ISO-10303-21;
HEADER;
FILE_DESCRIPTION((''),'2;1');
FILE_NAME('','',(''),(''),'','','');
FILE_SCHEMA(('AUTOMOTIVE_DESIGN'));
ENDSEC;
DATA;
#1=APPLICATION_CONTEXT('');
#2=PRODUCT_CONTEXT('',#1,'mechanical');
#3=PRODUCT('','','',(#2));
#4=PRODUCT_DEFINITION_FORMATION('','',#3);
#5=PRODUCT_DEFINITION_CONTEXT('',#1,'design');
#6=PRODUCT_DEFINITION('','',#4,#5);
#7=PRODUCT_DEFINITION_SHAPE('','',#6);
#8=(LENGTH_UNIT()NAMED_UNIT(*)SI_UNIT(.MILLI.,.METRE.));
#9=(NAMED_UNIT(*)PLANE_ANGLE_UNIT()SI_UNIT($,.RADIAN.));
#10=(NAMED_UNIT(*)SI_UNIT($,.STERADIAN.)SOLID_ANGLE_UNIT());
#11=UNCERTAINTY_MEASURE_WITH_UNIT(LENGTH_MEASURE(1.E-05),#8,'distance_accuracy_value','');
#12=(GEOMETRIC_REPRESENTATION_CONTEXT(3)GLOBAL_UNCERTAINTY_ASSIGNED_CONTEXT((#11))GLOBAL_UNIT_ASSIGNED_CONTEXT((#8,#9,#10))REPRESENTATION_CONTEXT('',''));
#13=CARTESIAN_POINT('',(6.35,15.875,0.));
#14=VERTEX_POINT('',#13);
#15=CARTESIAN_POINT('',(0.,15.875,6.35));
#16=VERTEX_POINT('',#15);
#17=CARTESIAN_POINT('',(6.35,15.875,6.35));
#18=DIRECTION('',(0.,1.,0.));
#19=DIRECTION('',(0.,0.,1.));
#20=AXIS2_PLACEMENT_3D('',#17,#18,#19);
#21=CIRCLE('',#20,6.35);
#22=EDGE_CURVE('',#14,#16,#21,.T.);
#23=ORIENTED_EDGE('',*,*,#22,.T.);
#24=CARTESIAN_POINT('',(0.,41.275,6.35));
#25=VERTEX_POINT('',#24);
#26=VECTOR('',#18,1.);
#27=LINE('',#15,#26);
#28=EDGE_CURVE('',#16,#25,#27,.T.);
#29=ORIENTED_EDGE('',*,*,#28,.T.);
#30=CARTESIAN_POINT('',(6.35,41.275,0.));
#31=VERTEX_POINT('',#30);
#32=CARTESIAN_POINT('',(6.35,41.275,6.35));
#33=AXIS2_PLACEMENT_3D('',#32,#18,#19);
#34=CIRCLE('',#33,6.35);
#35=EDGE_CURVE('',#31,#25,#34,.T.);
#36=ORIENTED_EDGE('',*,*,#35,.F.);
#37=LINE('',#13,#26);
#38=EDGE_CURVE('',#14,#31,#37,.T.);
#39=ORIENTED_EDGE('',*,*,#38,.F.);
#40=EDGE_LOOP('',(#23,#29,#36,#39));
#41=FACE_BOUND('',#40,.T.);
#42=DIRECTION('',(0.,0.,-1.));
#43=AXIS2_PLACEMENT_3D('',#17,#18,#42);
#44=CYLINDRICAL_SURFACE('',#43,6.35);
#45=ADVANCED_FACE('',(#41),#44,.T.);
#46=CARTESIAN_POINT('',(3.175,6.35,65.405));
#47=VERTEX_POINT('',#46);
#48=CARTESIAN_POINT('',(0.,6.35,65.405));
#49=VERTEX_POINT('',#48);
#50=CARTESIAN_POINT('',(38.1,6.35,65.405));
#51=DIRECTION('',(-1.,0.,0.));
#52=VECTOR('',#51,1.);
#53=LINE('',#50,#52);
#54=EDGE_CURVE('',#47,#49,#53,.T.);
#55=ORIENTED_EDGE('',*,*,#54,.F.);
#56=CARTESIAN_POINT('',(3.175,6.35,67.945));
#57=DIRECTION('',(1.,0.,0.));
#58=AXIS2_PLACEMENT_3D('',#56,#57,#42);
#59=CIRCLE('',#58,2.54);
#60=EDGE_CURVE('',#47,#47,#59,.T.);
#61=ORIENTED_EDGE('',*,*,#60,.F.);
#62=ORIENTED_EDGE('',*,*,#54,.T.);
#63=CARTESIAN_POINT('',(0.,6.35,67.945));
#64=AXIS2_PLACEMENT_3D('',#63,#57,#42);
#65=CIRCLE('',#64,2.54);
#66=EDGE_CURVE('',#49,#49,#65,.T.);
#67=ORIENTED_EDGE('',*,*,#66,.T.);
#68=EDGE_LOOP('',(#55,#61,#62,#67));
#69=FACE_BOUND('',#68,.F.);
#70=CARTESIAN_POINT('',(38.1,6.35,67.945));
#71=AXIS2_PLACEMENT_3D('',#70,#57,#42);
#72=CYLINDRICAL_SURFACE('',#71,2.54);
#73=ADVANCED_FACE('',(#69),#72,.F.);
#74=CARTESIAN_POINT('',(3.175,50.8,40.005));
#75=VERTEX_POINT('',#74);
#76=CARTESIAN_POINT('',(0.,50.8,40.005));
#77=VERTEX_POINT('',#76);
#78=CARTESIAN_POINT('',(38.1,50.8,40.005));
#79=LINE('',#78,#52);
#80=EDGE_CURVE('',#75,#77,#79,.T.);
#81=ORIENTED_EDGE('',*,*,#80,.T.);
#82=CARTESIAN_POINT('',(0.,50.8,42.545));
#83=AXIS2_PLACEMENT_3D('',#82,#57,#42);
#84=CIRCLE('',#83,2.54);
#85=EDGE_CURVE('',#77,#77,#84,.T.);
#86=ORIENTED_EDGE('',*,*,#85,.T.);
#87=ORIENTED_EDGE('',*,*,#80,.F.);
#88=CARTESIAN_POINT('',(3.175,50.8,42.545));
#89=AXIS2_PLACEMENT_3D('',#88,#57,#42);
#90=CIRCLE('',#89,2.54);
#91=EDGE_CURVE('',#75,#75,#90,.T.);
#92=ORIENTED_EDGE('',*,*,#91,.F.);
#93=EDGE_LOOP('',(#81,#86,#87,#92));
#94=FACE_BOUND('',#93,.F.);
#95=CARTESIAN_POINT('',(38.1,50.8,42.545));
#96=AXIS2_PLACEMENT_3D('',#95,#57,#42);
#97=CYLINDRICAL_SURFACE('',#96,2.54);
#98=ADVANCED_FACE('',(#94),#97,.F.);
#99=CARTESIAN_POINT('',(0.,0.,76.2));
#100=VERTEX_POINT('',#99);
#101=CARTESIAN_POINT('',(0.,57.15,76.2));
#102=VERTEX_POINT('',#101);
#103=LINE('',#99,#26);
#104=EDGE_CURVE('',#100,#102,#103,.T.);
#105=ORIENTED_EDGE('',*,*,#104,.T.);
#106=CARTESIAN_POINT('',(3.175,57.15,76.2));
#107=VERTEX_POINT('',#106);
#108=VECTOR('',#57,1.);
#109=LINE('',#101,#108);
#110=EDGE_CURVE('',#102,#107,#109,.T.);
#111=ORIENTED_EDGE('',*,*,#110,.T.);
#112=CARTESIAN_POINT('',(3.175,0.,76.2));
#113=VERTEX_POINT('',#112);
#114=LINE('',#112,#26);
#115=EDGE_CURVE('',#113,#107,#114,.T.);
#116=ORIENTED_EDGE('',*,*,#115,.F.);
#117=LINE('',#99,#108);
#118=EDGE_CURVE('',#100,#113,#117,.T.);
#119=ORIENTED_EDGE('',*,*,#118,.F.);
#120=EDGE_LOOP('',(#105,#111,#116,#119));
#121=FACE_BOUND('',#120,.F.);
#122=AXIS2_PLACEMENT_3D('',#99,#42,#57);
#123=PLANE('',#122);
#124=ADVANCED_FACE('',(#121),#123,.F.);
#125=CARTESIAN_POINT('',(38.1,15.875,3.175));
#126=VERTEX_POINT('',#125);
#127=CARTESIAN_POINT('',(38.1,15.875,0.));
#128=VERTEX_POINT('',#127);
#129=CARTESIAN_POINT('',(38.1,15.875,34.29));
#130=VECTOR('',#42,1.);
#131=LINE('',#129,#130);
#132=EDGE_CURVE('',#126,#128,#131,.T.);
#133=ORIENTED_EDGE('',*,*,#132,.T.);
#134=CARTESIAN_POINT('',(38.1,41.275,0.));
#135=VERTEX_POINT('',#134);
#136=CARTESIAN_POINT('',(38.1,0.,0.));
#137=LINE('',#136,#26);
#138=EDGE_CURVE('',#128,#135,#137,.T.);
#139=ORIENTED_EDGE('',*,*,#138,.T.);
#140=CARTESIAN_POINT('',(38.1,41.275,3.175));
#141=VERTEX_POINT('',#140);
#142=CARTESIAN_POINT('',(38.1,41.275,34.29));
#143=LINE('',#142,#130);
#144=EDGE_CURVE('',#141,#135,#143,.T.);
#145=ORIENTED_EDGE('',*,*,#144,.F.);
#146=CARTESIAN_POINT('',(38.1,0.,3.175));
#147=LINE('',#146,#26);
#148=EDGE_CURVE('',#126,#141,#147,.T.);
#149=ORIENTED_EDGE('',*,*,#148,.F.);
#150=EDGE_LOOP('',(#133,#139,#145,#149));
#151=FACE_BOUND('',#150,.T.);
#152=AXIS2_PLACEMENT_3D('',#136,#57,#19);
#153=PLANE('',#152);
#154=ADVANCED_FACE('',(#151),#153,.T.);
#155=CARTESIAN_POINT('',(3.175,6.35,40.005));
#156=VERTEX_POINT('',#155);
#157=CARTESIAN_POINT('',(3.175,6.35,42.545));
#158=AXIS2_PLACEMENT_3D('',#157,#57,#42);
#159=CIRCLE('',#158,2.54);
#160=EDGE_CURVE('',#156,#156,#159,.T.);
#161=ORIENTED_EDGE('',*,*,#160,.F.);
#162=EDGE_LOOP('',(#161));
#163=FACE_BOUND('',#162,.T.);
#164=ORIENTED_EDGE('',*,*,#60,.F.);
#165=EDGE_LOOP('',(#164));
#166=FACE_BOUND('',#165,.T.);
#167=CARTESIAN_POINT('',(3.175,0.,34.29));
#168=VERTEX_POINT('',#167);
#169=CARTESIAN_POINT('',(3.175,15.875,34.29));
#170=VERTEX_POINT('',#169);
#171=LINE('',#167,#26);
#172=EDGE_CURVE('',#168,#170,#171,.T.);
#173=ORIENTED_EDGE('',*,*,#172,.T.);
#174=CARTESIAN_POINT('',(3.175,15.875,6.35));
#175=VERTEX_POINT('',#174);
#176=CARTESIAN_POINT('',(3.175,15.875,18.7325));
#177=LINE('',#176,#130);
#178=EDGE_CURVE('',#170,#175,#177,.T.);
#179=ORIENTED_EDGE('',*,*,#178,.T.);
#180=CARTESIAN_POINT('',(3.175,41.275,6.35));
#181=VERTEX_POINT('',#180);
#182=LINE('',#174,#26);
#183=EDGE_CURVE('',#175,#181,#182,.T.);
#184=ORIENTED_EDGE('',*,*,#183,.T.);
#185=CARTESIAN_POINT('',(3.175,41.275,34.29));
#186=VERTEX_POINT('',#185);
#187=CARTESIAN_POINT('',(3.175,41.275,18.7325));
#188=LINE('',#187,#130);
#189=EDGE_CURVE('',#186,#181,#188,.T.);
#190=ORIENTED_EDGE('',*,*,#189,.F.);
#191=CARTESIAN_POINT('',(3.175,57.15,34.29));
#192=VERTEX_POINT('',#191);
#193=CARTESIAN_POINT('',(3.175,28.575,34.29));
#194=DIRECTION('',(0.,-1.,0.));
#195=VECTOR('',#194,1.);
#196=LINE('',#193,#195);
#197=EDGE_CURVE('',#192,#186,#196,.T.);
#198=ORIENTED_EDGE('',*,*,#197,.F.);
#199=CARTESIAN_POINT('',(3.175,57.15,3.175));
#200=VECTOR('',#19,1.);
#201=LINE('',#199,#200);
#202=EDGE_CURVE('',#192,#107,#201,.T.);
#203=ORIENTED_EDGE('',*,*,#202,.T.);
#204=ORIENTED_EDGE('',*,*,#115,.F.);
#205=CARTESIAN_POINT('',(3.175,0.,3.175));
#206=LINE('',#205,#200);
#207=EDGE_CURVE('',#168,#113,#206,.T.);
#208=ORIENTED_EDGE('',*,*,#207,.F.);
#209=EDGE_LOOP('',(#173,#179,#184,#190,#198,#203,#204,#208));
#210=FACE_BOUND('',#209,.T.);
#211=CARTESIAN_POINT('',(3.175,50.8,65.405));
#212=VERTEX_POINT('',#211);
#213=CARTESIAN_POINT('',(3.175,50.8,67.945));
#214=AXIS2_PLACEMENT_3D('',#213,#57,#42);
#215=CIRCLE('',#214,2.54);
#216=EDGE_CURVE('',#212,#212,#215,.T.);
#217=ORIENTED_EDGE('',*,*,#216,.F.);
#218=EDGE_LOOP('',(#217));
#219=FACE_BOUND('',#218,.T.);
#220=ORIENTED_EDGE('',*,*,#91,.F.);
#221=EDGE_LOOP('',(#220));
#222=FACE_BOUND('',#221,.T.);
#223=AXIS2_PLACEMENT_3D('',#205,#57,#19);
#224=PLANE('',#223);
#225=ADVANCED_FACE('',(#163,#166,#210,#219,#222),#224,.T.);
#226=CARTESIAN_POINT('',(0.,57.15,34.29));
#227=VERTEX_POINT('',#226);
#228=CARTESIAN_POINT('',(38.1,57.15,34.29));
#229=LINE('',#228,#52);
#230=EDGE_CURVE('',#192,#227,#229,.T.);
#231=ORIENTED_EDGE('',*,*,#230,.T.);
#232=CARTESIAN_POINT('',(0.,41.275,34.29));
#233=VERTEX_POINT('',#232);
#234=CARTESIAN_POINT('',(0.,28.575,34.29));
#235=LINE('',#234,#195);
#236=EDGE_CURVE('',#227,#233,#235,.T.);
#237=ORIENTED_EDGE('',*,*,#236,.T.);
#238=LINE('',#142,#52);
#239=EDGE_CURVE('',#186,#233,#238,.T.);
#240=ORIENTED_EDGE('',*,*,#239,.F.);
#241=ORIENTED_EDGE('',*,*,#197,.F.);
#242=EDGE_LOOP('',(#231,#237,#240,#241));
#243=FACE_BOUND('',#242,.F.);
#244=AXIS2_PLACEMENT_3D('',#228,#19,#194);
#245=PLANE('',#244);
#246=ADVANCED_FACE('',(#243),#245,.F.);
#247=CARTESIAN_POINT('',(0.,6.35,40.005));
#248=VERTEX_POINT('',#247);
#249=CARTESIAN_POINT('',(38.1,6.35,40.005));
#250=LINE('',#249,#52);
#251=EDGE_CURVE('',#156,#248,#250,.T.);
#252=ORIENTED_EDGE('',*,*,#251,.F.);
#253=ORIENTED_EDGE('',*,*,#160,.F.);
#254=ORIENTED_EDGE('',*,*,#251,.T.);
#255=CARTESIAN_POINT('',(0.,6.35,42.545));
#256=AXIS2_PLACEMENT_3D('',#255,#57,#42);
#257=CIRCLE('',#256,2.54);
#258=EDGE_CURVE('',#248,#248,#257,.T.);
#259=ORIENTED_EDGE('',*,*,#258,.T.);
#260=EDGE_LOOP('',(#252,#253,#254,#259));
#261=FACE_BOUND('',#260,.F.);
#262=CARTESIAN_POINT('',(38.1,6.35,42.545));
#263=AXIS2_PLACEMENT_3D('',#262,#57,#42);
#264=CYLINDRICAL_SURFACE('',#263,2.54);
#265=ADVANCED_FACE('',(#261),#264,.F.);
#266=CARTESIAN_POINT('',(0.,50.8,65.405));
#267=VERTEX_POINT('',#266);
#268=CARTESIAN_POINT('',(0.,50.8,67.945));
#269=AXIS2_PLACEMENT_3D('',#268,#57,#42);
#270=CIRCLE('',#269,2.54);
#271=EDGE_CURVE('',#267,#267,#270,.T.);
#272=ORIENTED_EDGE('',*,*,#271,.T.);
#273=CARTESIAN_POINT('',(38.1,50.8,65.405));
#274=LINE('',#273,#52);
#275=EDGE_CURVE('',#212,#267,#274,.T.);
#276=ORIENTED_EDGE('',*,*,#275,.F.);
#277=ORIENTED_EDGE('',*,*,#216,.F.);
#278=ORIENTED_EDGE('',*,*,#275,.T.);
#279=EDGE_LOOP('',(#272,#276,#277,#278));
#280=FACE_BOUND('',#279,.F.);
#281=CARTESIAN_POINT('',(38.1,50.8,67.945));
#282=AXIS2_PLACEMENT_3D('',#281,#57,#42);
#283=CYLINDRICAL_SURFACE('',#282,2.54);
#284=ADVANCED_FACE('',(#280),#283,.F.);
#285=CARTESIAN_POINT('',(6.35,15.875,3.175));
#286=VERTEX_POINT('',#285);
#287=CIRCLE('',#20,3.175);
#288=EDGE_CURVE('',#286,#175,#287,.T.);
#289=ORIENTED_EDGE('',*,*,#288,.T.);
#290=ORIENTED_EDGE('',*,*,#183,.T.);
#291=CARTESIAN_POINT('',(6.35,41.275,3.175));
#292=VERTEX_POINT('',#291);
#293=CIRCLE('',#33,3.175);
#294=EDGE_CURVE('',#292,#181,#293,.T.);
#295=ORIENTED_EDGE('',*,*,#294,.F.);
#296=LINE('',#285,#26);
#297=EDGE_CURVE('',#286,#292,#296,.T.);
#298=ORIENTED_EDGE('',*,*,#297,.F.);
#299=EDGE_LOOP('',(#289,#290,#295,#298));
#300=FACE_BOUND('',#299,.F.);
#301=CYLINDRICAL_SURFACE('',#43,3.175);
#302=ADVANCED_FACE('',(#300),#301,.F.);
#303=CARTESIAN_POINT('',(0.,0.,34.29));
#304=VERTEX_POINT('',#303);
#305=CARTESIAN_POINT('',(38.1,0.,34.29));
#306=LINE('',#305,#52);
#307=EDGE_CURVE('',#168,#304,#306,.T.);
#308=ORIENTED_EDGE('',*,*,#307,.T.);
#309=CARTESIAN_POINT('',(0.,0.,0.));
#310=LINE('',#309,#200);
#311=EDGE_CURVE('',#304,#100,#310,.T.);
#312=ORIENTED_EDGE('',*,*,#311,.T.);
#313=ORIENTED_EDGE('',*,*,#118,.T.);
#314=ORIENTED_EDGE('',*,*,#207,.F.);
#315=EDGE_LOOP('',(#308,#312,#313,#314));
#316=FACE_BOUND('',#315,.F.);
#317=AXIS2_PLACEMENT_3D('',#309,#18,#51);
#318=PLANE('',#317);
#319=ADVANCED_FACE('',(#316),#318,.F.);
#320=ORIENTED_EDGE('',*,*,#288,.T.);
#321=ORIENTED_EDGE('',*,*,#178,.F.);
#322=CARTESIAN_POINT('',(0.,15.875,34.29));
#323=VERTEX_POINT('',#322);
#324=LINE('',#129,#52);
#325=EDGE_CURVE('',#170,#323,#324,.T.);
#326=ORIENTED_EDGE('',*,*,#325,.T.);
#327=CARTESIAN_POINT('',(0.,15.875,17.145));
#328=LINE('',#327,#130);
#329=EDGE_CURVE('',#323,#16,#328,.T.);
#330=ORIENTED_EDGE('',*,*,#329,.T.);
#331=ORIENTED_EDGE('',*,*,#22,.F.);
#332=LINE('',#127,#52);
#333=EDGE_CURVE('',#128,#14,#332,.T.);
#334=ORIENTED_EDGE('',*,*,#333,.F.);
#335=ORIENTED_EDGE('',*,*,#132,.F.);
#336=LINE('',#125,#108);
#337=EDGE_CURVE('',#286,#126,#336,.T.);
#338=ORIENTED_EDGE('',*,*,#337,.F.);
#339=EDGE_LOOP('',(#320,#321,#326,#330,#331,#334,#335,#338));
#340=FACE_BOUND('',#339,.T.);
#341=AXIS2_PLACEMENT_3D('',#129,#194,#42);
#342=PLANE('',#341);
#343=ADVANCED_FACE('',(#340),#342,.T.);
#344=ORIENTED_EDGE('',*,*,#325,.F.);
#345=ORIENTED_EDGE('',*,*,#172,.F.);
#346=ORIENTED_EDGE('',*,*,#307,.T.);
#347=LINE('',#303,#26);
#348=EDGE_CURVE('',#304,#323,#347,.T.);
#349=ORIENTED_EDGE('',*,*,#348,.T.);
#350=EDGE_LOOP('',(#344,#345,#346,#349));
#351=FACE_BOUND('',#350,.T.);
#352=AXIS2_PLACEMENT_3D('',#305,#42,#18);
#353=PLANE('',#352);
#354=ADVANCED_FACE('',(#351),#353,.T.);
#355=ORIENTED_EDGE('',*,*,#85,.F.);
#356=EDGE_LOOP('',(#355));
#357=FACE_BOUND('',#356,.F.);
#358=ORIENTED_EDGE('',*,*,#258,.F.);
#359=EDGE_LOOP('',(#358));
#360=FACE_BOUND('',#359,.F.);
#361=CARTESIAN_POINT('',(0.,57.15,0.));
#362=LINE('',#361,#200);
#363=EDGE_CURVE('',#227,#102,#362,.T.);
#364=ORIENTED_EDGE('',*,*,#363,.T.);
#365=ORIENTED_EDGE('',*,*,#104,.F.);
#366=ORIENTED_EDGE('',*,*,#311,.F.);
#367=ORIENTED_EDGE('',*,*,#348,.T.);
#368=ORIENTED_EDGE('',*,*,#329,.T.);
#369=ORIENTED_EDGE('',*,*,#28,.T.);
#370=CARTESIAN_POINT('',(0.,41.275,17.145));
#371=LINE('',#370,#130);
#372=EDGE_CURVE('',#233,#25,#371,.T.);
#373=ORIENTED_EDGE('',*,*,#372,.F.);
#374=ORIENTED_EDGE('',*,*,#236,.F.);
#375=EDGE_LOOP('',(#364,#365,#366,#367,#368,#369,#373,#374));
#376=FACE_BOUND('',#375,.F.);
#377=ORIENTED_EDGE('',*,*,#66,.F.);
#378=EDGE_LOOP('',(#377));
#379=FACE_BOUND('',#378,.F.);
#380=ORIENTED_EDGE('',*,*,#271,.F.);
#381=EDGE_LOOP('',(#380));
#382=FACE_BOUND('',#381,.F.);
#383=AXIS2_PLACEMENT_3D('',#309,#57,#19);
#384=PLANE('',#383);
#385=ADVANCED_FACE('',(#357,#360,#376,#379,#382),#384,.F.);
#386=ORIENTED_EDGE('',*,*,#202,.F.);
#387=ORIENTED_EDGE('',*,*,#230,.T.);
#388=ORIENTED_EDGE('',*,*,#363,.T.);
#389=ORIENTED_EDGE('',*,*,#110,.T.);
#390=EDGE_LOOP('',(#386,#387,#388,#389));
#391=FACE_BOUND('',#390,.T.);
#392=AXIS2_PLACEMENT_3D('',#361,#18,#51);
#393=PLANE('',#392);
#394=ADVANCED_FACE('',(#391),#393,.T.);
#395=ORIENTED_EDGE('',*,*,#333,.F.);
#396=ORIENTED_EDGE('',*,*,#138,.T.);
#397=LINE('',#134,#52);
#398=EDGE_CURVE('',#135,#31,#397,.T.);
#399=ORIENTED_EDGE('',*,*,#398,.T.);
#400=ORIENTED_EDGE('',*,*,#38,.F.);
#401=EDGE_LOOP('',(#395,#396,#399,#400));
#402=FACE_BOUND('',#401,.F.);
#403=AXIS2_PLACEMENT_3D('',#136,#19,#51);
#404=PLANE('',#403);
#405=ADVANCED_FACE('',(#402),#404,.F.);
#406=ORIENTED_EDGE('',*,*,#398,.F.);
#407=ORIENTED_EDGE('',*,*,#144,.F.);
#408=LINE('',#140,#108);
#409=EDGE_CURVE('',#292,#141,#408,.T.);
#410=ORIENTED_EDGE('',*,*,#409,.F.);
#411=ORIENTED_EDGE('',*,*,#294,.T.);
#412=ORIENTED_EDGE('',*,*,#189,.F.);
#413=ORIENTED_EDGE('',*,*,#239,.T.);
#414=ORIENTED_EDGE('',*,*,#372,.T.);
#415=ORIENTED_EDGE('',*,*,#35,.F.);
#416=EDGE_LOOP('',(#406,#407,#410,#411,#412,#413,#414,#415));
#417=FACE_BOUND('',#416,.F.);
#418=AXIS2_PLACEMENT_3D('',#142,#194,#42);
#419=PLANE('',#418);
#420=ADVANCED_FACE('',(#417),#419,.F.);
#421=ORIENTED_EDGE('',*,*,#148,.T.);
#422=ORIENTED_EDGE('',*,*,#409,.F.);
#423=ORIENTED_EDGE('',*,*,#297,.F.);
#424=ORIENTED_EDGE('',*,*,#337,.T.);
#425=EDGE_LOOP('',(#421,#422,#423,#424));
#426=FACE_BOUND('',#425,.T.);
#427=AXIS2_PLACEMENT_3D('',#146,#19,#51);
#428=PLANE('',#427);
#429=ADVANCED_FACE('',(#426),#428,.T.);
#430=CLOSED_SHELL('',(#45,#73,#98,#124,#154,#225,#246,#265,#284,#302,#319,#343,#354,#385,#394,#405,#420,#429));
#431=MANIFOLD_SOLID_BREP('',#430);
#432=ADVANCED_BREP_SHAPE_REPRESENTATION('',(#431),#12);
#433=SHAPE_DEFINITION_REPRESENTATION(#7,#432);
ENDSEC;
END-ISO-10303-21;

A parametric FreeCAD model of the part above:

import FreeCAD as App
import Part
import Sketcher
from FreeCAD import Vector
Q = App.Units.Quantity


def edges_at(feature, points):
    """Names of the edges that pass closest to the given points."""
    edges = feature.Shape.Edges
    near = lambda p: min(range(len(edges)), key=lambda i: edges[i].distToShape(Part.Vertex(*p))[0])
    return sorted({f"Edge{near(p) + 1}" for p in points})

doc = App.newDocument("Part")
body = doc.addObject("PartDesign::Body", "Body")

sketch1 = doc.addObject("Sketcher::SketchObject", "Sketch")
body.addObject(sketch1)
sketch1.AttachmentSupport = (doc.XZ_Plane, [""])
sketch1.MapMode = "FlatFace"
sketch1.addGeometry([
    Part.LineSegment(Vector(38.1, 3.2, 0), Vector(38.1, 0, 0)),
    Part.LineSegment(Vector(38.1, 0, 0), Vector(0, 0, 0)),
    Part.LineSegment(Vector(0, 0, 0), Vector(0, 76.2, 0)),
    Part.LineSegment(Vector(0, 76.2, 0), Vector(3.2, 76.2, 0)),
    Part.LineSegment(Vector(3.2, 76.2, 0), Vector(3.2, 3.2, 0)),
    Part.LineSegment(Vector(3.2, 3.2, 0), Vector(38.1, 3.2, 0)),
], False)
sketch1.addConstraint([
    Sketcher.Constraint("Coincident", 0, 2, 1, 1),
    Sketcher.Constraint("Coincident", 1, 2, 2, 1),
    Sketcher.Constraint("Coincident", 2, 2, 3, 1),
    Sketcher.Constraint("Coincident", 3, 2, 4, 1),
    Sketcher.Constraint("Coincident", 4, 2, 5, 1),
    Sketcher.Constraint("Coincident", 5, 2, 0, 1),
    Sketcher.Constraint("Vertical", 0),
    Sketcher.Constraint("Horizontal", 1),
    Sketcher.Constraint("Vertical", 2),
    Sketcher.Constraint("Horizontal", 3),
    Sketcher.Constraint("Vertical", 4),
    Sketcher.Constraint("Horizontal", 5),
    Sketcher.Constraint("Coincident", 1, 2, -1, 1),
    Sketcher.Constraint("Equal", 3, 0),
    Sketcher.Constraint("DistanceY", 2, 1, 2, 2, Q("3 in")),
    Sketcher.Constraint("DistanceX", 1, 2, 1, 1, Q("1.5 in")),
    Sketcher.Constraint("DistanceX", 3, 1, 3, 2, Q("0.125 in")),
])
pad1 = doc.addObject("PartDesign::Pad", "Pad")
body.addObject(pad1)
pad1.Profile = sketch1
pad1.Length = Q("2.25 in")
pad1.Reversed = True

sketch2 = doc.addObject("Sketcher::SketchObject", "Sketch001")
body.addObject(sketch2)
sketch2.AttachmentSupport = (doc.YZ_Plane, [""])
sketch2.MapMode = "FlatFace"
sketch2.AttachmentOffset = App.Placement(Vector(0, 0, 1.5 * 25.4), App.Rotation())
sketch2.addGeometry([
    Part.LineSegment(Vector(41.3, 0, 0), Vector(57.1, 0, 0)),
    Part.LineSegment(Vector(57.1, 0, 0), Vector(57.1, 34.3, 0)),
    Part.LineSegment(Vector(57.1, 34.3, 0), Vector(41.3, 34.3, 0)),
    Part.LineSegment(Vector(41.3, 34.3, 0), Vector(41.3, 0, 0)),
    Part.LineSegment(Vector(0, 34.3, 0), Vector(0, 0, 0)),
    Part.LineSegment(Vector(0, 0, 0), Vector(15.9, 0, 0)),
    Part.LineSegment(Vector(15.9, 0, 0), Vector(15.9, 34.3, 0)),
    Part.LineSegment(Vector(15.9, 34.3, 0), Vector(0, 34.3, 0)),
    Part.Circle(Vector(50.8, 42.5, 0), Vector(0, 0, 1), 2.5),
    Part.Circle(Vector(50.8, 67.9, 0), Vector(0, 0, 1), 2.5),
    Part.Circle(Vector(6.3, 42.5, 0), Vector(0, 0, 1), 2.5),
    Part.Circle(Vector(6.3, 67.9, 0), Vector(0, 0, 1), 2.5),
], False)
sketch2.addConstraint([
    Sketcher.Constraint("Coincident", 0, 2, 1, 1),
    Sketcher.Constraint("Coincident", 1, 2, 2, 1),
    Sketcher.Constraint("Coincident", 2, 2, 3, 1),
    Sketcher.Constraint("Coincident", 3, 2, 0, 1),
    Sketcher.Constraint("Coincident", 4, 2, 5, 1),
    Sketcher.Constraint("Coincident", 5, 2, 6, 1),
    Sketcher.Constraint("Coincident", 6, 2, 7, 1),
    Sketcher.Constraint("Coincident", 7, 2, 4, 1),
    Sketcher.Constraint("Horizontal", 0),
    Sketcher.Constraint("Vertical", 1),
    Sketcher.Constraint("Horizontal", 2),
    Sketcher.Constraint("Vertical", 3),
    Sketcher.Constraint("Vertical", 4),
    Sketcher.Constraint("Horizontal", 5),
    Sketcher.Constraint("Vertical", 6),
    Sketcher.Constraint("Horizontal", 7),
    Sketcher.Constraint("Coincident", 4, 2, -1, 1),
    Sketcher.Constraint("Equal", 8, 9),
    Sketcher.Constraint("Equal", 9, 10),
    Sketcher.Constraint("Equal", 10, 11),
    Sketcher.Constraint("PointOnObject", 0, 2, -1),
    Sketcher.Constraint("Horizontal", 8, 3, 10, 3),
    Sketcher.Constraint("Horizontal", 9, 3, 11, 3),
    Sketcher.Constraint("Horizontal", 2, 2, 6, 2),
    Sketcher.Constraint("Vertical", 8, 3, 9, 3),
    Sketcher.Constraint("Vertical", 10, 3, 11, 3),
    Sketcher.Constraint("Equal", 2, 5),
    Sketcher.Constraint("Diameter", 8, Q("0.2 in")),
    Sketcher.Constraint("DistanceY", 8, 3, 9, 3, Q("1 in")),
    Sketcher.Constraint("DistanceX", 5, 2, 3, 2, Q("1 in")),
    Sketcher.Constraint("DistanceX", 10, 3, 8, 3, Q("1.75 in")),
    Sketcher.Constraint("DistanceX", -1, 1, 8, 3, Q("2 in")),
    Sketcher.Constraint("DistanceX", 10, 3, 0, 2, Q("2 in")),
    Sketcher.Constraint("DistanceY", 1, 1, 1, 2, Q("1.35 in")),
    Sketcher.Constraint("DistanceY", -1, 1, 8, 3, Q("1.675 in")),
])
pocket1 = doc.addObject("PartDesign::Pocket", "Pocket")
body.addObject(pocket1)
pocket1.Profile = sketch2
pocket1.Type = "ThroughAll"
doc.recompute()

fillet = doc.addObject("PartDesign::Fillet", "Fillet")
body.addObject(fillet)
fillet.Base = (pocket1, edges_at(pocket1, [(3.175, 28.575, 3.175)]))
fillet.Radius = Q("0.125 in")
doc.recompute()

fillet2 = doc.addObject("PartDesign::Fillet", "Fillet001")
body.addObject(fillet2)
fillet2.Base = (fillet, edges_at(fillet, [(0, 28.575, 0)]))
fillet2.Radius = Q("0.25 in")

doc.recompute()
